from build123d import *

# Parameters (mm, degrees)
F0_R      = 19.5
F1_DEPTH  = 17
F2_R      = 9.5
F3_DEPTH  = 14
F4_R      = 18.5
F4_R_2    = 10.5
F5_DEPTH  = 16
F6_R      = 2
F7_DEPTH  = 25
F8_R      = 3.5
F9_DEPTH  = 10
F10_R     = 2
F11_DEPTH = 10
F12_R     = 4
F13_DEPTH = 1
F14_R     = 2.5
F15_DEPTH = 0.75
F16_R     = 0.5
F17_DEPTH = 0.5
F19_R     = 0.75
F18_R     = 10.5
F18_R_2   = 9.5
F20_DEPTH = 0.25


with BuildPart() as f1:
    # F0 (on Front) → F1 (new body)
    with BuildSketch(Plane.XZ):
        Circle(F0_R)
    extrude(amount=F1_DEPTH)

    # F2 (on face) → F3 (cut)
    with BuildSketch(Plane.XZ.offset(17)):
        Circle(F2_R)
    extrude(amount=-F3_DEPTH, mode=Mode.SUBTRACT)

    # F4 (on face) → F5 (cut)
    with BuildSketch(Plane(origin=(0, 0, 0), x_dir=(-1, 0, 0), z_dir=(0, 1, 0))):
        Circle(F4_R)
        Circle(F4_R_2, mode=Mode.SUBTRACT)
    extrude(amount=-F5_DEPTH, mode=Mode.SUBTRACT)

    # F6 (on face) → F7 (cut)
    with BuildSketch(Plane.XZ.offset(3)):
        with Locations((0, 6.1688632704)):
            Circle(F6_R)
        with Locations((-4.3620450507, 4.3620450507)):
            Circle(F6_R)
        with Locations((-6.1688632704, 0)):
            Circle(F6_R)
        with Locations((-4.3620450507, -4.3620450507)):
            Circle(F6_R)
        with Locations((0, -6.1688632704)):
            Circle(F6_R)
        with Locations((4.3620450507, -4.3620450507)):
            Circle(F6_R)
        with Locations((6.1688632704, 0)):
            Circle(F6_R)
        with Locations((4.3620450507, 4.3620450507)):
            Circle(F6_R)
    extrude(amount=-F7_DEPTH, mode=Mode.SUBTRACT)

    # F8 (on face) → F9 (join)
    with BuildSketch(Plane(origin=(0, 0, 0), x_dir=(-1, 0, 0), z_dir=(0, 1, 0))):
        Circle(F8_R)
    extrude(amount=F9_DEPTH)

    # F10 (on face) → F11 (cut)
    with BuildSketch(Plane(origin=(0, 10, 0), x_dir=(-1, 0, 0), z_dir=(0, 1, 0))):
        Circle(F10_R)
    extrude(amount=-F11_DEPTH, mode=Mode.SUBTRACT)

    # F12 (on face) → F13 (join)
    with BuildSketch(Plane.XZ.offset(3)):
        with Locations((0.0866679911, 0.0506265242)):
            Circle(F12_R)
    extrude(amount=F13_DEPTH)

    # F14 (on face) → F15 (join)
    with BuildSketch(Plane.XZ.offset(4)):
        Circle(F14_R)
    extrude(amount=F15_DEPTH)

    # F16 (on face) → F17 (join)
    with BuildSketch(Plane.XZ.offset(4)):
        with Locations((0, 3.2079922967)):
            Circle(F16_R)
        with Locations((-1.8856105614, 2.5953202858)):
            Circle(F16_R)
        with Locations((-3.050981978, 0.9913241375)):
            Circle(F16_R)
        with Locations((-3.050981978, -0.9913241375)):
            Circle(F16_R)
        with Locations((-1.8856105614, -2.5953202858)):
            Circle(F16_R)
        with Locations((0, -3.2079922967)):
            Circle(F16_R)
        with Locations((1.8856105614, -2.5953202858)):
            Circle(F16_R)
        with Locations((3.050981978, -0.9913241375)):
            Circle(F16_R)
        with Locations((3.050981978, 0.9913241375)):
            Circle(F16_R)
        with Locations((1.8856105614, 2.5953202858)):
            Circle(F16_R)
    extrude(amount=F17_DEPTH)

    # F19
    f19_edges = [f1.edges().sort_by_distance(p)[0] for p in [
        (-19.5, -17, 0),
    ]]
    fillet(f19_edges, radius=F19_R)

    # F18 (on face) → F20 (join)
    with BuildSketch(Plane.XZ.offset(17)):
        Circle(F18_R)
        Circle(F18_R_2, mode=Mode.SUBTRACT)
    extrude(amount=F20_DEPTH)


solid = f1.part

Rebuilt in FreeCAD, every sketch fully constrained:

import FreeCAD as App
import Part
import Sketcher

V = App.Vector


def edges_at(feature, points):
    """Names of the edges that pass closest to the given points."""
    edges = feature.Shape.Edges
    near = lambda p: min(range(len(edges)), key=lambda i: edges[i].distToShape(Part.Vertex(*p))[0])
    return sorted({f"Edge{near(p) + 1}" for p in points})

doc = App.newDocument("Part")
body = doc.addObject("PartDesign::Body", "Body")

# Sketch on XZ plane
sketch1 = body.newObject("Sketcher::SketchObject", "Sketch")
sketch1.AttachmentSupport = (doc.getObject("XZ_Plane"), [""])
sketch1.MapMode = "FlatFace"
sketch1.addGeometry(Part.Circle(V(0, 0, 0), V(0, 0, 1), 20), False)
sketch1.addConstraint([
    Sketcher.Constraint("Coincident", 0, 3, -1, 1),
    Sketcher.Constraint("Diameter", 0, 39.0),
])
pad1 = body.newObject("PartDesign::Pad", "Pad")
pad1.Profile = sketch1
pad1.Length = 17

# Sketch on XZ plane
sketch2 = body.newObject("Sketcher::SketchObject", "Sketch001")
sketch2.AttachmentSupport = (doc.getObject("XZ_Plane"), [""])
sketch2.MapMode = "FlatFace"
sketch2.AttachmentOffset = App.Placement(V(0, 0, 17), App.Rotation())
sketch2.addGeometry(Part.Circle(V(0, 0, 0), V(0, 0, 1), 10), False)
sketch2.addConstraint([
    Sketcher.Constraint("Coincident", 0, 3, -1, 1),
    Sketcher.Constraint("Diameter", 0, 19.0),
])
pocket1 = body.newObject("PartDesign::Pocket", "Pocket")
pocket1.Profile = sketch2
pocket1.Length = 14

# Sketch on XZ plane
sketch3 = body.newObject("Sketcher::SketchObject", "Sketch002")
sketch3.AttachmentSupport = (doc.getObject("XZ_Plane"), [""])
sketch3.MapMode = "FlatFace"
sketch3.addGeometry([
    Part.Circle(V(0, 0, 0), V(0, 0, 1), 18),
    Part.Circle(V(0, 0, 0), V(0, 0, 1), 10),
], False)
sketch3.addConstraint([
    Sketcher.Constraint("Coincident", 0, 3, -1, 1),
    Sketcher.Constraint("Coincident", 1, 3, -1, 1),
    Sketcher.Constraint("Diameter", 0, 37.0),
    Sketcher.Constraint("Diameter", 1, 21.0),
])
pocket2 = body.newObject("PartDesign::Pocket", "Pocket001")
pocket2.Profile = sketch3
pocket2.Length = 16
pocket2.Reversed = True

# Sketch on XZ plane
sketch4 = body.newObject("Sketcher::SketchObject", "Sketch003")
sketch4.AttachmentSupport = (doc.getObject("XZ_Plane"), [""])
sketch4.MapMode = "FlatFace"
sketch4.AttachmentOffset = App.Placement(V(0, 0, 3), App.Rotation())
sketch4.addGeometry([
    Part.Circle(V(0, 6.2, 0), V(0, 0, 1), 2),  # 0
    Part.Circle(V(-4.4, 4.4, 0), V(0, 0, 1), 2),  # 1
    Part.Circle(V(-6.2, 0, 0), V(0, 0, 1), 2),  # 2
    Part.Circle(V(-4.4, -4.4, 0), V(0, 0, 1), 2),  # 3
    Part.Circle(V(0, -6.2, 0), V(0, 0, 1), 2),  # 4
    Part.Circle(V(4.4, -4.4, 0), V(0, 0, 1), 2),  # 5
    Part.Circle(V(6.2, 0, 0), V(0, 0, 1), 2),  # 6
    Part.Circle(V(4.4, 4.4, 0), V(0, 0, 1), 2),  # 7
], False)
sketch4.addConstraint([
    Sketcher.Constraint("Equal", 0, 1),
    Sketcher.Constraint("Equal", 1, 2),
    Sketcher.Constraint("Equal", 2, 3),
    Sketcher.Constraint("Equal", 3, 4),
    Sketcher.Constraint("Equal", 4, 5),
    Sketcher.Constraint("Equal", 5, 6),
    Sketcher.Constraint("Equal", 6, 7),
    Sketcher.Constraint("Symmetric", 0, 3, 4, 3, -1, 1),
    Sketcher.Constraint("Symmetric", 1, 3, 5, 3, -1, 1),
    Sketcher.Constraint("Symmetric", 2, 3, 6, 3, -1, 1),
    Sketcher.Constraint("Symmetric", 3, 3, 7, 3, -1, 1),
    Sketcher.Constraint("Symmetric", 3, 3, 5, 3, -2),
    Sketcher.Constraint("PointOnObject", 0, 3, -2),
    Sketcher.Constraint("PointOnObject", 2, 3, -1),
    Sketcher.Constraint("Diameter", 0, 4.0),
    Sketcher.Constraint("DistanceY", 1, 3, 0, 3, 1.806818),
    Sketcher.Constraint("DistanceX", 2, 3, 1, 3, 1.806818),
    Sketcher.Constraint("DistanceY", 3, 3, 1, 3, 8.72409),
    Sketcher.Constraint("DistanceX", 3, 3, 5, 3, 8.72409),
])
pocket3 = body.newObject("PartDesign::Pocket", "Pocket002")
pocket3.Profile = sketch4
pocket3.Length = 25

# Sketch on XZ plane
sketch5 = body.newObject("Sketcher::SketchObject", "Sketch004")
sketch5.AttachmentSupport = (doc.getObject("XZ_Plane"), [""])
sketch5.MapMode = "FlatFace"
sketch5.addGeometry(Part.Circle(V(0, 0, 0), V(0, 0, 1), 3.5), False)
sketch5.addConstraint([
    Sketcher.Constraint("Coincident", 0, 3, -1, 1),
    Sketcher.Constraint("Diameter", 0, 7.0),
])
pad2 = body.newObject("PartDesign::Pad", "Pad001")
pad2.Profile = sketch5
pad2.Length = 10
pad2.Reversed = True

# Sketch on XZ plane
sketch6 = body.newObject("Sketcher::SketchObject", "Sketch005")
sketch6.AttachmentSupport = (doc.getObject("XZ_Plane"), [""])
sketch6.MapMode = "FlatFace"
sketch6.AttachmentOffset = App.Placement(V(0, 0, -10), App.Rotation())
sketch6.addGeometry(Part.Circle(V(0, 0, 0), V(0, 0, 1), 2), False)
sketch6.addConstraint([
    Sketcher.Constraint("Coincident", 0, 3, -1, 1),
    Sketcher.Constraint("Diameter", 0, 4.0),
])
pocket4 = body.newObject("PartDesign::Pocket", "Pocket003")
pocket4.Profile = sketch6
pocket4.Length = 10
pocket4.Reversed = True

# Sketch on XZ plane
sketch7 = body.newObject("Sketcher::SketchObject", "Sketch006")
sketch7.AttachmentSupport = (doc.getObject("XZ_Plane"), [""])
sketch7.MapMode = "FlatFace"
sketch7.AttachmentOffset = App.Placement(V(0, 0, 3), App.Rotation())
sketch7.addGeometry(Part.Circle(V(0.1, 0.1, 0), V(0, 0, 1), 4), False)
sketch7.addConstraint([
    Sketcher.Constraint("Diameter", 0, 8.0),
    Sketcher.Constraint("DistanceX", -1, 1, 0, 3, 0.086668),
    Sketcher.Constraint("DistanceY", -1, 1, 0, 3, 0.050627),
])
pad3 = body.newObject("PartDesign::Pad", "Pad002")
pad3.Profile = sketch7
pad3.Length = 1

# Sketch on XZ plane
sketch8 = body.newObject("Sketcher::SketchObject", "Sketch007")
sketch8.AttachmentSupport = (doc.getObject("XZ_Plane"), [""])
sketch8.MapMode = "FlatFace"
sketch8.AttachmentOffset = App.Placement(V(0, 0, 4), App.Rotation())
sketch8.addGeometry(Part.Circle(V(0, 0, 0), V(0, 0, 1), 2.5), False)
sketch8.addConstraint([
    Sketcher.Constraint("Coincident", 0, 3, -1, 1),
    Sketcher.Constraint("Diameter", 0, 5.0),
])
pad4 = body.newObject("PartDesign::Pad", "Pad003")
pad4.Profile = sketch8
pad4.Length = 0.75

# Sketch on XZ plane
sketch9 = body.newObject("Sketcher::SketchObject", "Sketch008")
sketch9.AttachmentSupport = (doc.getObject("XZ_Plane"), [""])
sketch9.MapMode = "FlatFace"
sketch9.AttachmentOffset = App.Placement(V(0, 0, 4), App.Rotation())
sketch9.addGeometry([
    Part.Circle(V(0, 3.2, 0), V(0, 0, 1), 0.5),  # 0
    Part.Circle(V(-1.9, 2.6, 0), V(0, 0, 1), 0.5),  # 1
    Part.Circle(V(-3.1, 1, 0), V(0, 0, 1), 0.5),  # 2
    Part.Circle(V(-3.1, -1, 0), V(0, 0, 1), 0.5),  # 3
    Part.Circle(V(-1.9, -2.6, 0), V(0, 0, 1), 0.5),  # 4
    Part.Circle(V(0, -3.2, 0), V(0, 0, 1), 0.5),  # 5
    Part.Circle(V(1.9, -2.6, 0), V(0, 0, 1), 0.5),  # 6
    Part.Circle(V(3.1, -1, 0), V(0, 0, 1), 0.5),  # 7
    Part.Circle(V(3.1, 1, 0), V(0, 0, 1), 0.5),  # 8
    Part.Circle(V(1.9, 2.6, 0), V(0, 0, 1), 0.5),  # 9
], False)
sketch9.addConstraint([
    Sketcher.Constraint("Equal", 0, 1),
    Sketcher.Constraint("Equal", 1, 2),
    Sketcher.Constraint("Equal", 2, 3),
    Sketcher.Constraint("Equal", 3, 4),
    Sketcher.Constraint("Equal", 4, 5),
    Sketcher.Constraint("Equal", 5, 6),
    Sketcher.Constraint("Equal", 6, 7),
    Sketcher.Constraint("Equal", 7, 8),
    Sketcher.Constraint("Equal", 8, 9),
    Sketcher.Constraint("Symmetric", 0, 3, 5, 3, -1, 1),
    Sketcher.Constraint("Symmetric", 1, 3, 6, 3, -1, 1),
    Sketcher.Constraint("Symmetric", 2, 3, 7, 3, -1, 1),
    Sketcher.Constraint("Symmetric", 3, 3, 8, 3, -1, 1),
    Sketcher.Constraint("Symmetric", 4, 3, 9, 3, -1, 1),
    Sketcher.Constraint("Symmetric", 4, 3, 6, 3, -2),
    Sketcher.Constraint("Symmetric", 3, 3, 7, 3, -2),
    Sketcher.Constraint("PointOnObject", 0, 3, -2),
    Sketcher.Constraint("Diameter", 0, 1.0),
    Sketcher.Constraint("DistanceX", 1, 3, -1, 1, 1.885611),
    Sketcher.Constraint("DistanceY", -1, 1, 1, 3, 2.59532),
    Sketcher.Constraint("DistanceX", 2, 3, -1, 1, 3.050982),
    Sketcher.Constraint("DistanceY", 2, 3, 0, 3, 2.216668),
    Sketcher.Constraint("DistanceY", 3, 3, 2, 3, 1.982648),
])
pad5 = body.newObject("PartDesign::Pad", "Pad004")
pad5.Profile = sketch9
pad5.Length = 0.5
doc.recompute()

fillet = body.newObject("PartDesign::Fillet", "Fillet")
fillet.Base = (pad5, edges_at(pad5, [(-19.5, -17, 0)]))
fillet.Radius = 0.75

# Sketch on XZ plane
sketch10 = body.newObject("Sketcher::SketchObject", "Sketch009")
sketch10.AttachmentSupport = (doc.getObject("XZ_Plane"), [""])
sketch10.MapMode = "FlatFace"
sketch10.AttachmentOffset = App.Placement(V(0, 0, 17), App.Rotation())
sketch10.addGeometry([
    Part.Circle(V(0, 0, 0), V(0, 0, 1), 10),
    Part.Circle(V(0, 0, 0), V(0, 0, 1), 10),
], False)
sketch10.addConstraint([
    Sketcher.Constraint("Coincident", 0, 3, -1, 1),
    Sketcher.Constraint("Coincident", 1, 3, -1, 1),
    Sketcher.Constraint("Diameter", 0, 21.0),
    Sketcher.Constraint("Diameter", 1, 19.0),
])
pad6 = body.newObject("PartDesign::Pad", "Pad005")
pad6.Profile = sketch10
pad6.Length = 0.25

doc.recompute()
